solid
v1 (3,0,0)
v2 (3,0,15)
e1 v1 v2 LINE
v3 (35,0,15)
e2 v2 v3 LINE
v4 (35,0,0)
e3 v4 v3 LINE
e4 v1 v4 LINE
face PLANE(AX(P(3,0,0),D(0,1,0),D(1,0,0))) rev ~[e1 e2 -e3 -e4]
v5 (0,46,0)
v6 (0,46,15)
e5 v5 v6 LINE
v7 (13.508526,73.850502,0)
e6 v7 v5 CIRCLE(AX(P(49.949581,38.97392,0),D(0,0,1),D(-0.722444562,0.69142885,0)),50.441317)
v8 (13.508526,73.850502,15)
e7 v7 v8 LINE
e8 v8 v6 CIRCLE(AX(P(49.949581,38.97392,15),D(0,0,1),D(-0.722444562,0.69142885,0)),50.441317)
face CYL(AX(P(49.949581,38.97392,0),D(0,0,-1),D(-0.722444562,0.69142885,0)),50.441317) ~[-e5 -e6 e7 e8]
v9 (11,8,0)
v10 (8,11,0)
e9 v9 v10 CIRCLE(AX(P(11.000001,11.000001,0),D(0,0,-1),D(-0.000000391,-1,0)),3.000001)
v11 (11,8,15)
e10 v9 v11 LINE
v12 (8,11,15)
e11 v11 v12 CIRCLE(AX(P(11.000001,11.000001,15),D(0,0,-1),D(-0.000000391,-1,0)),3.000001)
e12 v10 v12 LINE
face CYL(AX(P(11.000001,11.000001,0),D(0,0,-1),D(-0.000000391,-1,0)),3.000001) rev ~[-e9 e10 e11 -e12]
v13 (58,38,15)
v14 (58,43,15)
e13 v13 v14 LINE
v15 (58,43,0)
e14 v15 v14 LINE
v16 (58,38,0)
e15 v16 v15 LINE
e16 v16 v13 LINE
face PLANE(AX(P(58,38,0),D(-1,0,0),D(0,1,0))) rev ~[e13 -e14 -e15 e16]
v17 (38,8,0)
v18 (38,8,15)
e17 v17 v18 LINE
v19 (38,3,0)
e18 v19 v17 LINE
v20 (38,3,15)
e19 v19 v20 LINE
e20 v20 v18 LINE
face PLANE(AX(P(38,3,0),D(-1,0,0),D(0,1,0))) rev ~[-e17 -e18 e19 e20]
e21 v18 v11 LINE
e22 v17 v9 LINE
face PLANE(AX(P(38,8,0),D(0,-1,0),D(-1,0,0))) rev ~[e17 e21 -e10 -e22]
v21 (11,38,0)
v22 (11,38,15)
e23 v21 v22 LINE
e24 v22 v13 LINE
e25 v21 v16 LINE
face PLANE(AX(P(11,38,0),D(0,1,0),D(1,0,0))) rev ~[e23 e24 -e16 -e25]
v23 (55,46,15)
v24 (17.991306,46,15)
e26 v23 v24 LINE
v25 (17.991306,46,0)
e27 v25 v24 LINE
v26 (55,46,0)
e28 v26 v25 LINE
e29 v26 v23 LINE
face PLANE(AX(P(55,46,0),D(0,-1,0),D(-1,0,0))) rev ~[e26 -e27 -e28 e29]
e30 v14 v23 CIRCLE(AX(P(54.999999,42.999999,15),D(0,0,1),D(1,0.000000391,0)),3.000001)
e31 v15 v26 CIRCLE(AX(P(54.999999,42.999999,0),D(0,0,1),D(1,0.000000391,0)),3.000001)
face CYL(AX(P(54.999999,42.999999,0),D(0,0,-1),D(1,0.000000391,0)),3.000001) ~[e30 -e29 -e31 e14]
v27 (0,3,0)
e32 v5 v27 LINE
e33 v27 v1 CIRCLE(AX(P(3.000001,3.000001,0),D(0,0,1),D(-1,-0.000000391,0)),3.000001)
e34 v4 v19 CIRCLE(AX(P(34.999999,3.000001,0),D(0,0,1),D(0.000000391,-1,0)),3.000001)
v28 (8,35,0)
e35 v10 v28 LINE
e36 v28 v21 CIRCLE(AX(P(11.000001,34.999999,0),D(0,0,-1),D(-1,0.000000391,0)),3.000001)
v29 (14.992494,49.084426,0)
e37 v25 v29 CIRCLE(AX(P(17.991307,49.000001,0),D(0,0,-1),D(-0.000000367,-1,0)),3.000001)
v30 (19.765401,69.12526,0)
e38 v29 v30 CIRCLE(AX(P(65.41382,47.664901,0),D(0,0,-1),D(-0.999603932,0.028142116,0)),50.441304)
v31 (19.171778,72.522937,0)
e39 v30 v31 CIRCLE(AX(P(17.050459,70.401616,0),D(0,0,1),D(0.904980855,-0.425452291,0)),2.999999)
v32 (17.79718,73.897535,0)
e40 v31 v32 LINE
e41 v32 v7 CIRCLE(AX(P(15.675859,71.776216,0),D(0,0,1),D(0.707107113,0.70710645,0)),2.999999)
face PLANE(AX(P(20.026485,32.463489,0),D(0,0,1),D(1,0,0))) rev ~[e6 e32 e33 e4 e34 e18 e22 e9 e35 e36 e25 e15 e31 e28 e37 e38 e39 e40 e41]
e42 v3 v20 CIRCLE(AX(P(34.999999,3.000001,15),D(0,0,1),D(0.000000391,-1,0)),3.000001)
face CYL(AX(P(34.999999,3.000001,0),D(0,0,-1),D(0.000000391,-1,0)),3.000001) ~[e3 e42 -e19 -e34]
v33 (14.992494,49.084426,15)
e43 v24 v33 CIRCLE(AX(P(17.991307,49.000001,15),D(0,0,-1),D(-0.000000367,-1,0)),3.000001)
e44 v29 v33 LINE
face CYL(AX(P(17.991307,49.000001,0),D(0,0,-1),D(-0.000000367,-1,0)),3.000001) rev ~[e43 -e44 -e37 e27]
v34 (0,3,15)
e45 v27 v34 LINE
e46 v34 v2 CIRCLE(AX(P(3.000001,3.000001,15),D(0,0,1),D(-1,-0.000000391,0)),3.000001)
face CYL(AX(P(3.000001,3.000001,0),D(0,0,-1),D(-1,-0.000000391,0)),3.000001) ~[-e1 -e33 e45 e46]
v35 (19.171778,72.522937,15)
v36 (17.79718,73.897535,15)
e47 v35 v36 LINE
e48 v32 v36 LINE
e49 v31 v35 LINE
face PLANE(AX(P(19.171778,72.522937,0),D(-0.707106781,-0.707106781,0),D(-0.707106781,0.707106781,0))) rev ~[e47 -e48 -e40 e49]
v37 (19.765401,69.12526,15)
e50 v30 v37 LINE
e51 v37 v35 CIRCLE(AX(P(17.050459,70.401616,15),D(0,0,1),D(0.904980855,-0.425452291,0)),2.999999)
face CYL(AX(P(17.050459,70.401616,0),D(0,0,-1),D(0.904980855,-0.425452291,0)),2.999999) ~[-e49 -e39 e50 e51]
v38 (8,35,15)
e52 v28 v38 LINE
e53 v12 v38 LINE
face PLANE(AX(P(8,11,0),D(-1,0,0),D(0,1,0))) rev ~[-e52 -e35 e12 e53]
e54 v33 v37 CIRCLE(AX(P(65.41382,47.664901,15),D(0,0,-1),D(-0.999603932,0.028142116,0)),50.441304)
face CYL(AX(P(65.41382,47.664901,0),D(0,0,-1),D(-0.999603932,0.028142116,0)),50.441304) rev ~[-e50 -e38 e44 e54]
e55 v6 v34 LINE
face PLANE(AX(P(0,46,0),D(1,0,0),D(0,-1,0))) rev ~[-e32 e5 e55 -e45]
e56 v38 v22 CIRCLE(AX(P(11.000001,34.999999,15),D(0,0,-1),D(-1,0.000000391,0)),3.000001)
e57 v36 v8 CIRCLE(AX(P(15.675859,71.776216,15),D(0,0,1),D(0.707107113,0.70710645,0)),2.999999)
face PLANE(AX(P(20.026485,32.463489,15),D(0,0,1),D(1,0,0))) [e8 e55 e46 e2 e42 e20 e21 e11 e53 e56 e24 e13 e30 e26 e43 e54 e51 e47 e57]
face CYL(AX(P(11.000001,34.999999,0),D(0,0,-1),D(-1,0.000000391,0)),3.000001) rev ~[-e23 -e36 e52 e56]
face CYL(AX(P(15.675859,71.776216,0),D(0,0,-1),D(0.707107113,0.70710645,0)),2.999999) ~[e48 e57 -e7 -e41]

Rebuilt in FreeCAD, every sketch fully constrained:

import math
import FreeCAD as App
import Part
import Sketcher
from FreeCAD import Vector
Q = App.Units.Quantity

doc = App.newDocument("Part")
body = doc.addObject("PartDesign::Body", "Body")

# Sketch on XY plane
sketch1 = body.newObject("Sketcher::SketchObject", "Sketch")
sketch1.AttachmentSupport = (doc.getObject("XY_Plane"), [""])
sketch1.MapMode = "FlatFace"
sketch1.addGeometry(Part.ArcOfCircle(Part.Circle(Vector(3, 3, 0), Vector(0, 0, 1), 3), math.radians(-180), math.radians(-90)), False)
sketch1.addGeometry(Part.LineSegment(Vector(3, 0, 0), Vector(35, 0, 0)), False)
sketch1.addGeometry(Part.ArcOfCircle(Part.Circle(Vector(35, 3, 0), Vector(0, 0, 1), 3), math.radians(-90), math.radians(0)), False)
sketch1.addGeometry(Part.LineSegment(Vector(38, 3, 0), Vector(38, 8, 0)), False)
sketch1.addGeometry(Part.LineSegment(Vector(38, 8, 0), Vector(11, 8, 0)), False)
sketch1.addGeometry(Part.ArcOfCircle(Part.Circle(Vector(11, 11, 0), Vector(0, 0, 1), 3), math.radians(-180), math.radians(-90)), False)
sketch1.addGeometry(Part.LineSegment(Vector(8, 11, 0), Vector(8, 35, 0)), False)
sketch1.addGeometry(Part.ArcOfCircle(Part.Circle(Vector(11, 35, 0), Vector(0, 0, 1), 3), math.radians(90), math.radians(180)), False)
sketch1.addGeometry(Part.LineSegment(Vector(11, 38, 0), Vector(58, 38, 0)), False)
sketch1.addGeometry(Part.LineSegment(Vector(58, 38, 0), Vector(58, 43, 0)), False)
sketch1.addGeometry(Part.ArcOfCircle(Part.Circle(Vector(55, 43, 0), Vector(0, 0, 1), 3), math.radians(0), math.radians(90)), False)
sketch1.addGeometry(Part.LineSegment(Vector(55, 46, 0), Vector(18, 46, 0)), False)
sketch1.addGeometry(Part.ArcOfCircle(Part.Circle(Vector(18, 49, 0), Vector(0, 0, 1), 3), math.radians(178), math.radians(270)), False)
sketch1.addGeometry(Part.ArcOfCircle(Part.Circle(Vector(65.4, 47.7, 0), Vector(0, 0, 1), 50.4), math.radians(155), math.radians(178)), False)
sketch1.addGeometry(Part.ArcOfCircle(Part.Circle(Vector(17.1, 70.4, 0), Vector(0, 0, 1), 3), math.radians(-25), math.radians(45)), False)
sketch1.addGeometry(Part.LineSegment(Vector(19.2, 72.5, 0), Vector(17.8, 73.9, 0)), False)
sketch1.addGeometry(Part.ArcOfCircle(Part.Circle(Vector(15.7, 71.8, 0), Vector(0, 0, 1), 3), math.radians(45), math.radians(136)), False)
sketch1.addGeometry(Part.ArcOfCircle(Part.Circle(Vector(49.9, 39, 0), Vector(0, 0, 1), 50.4), math.radians(136), math.radians(172)), False)
sketch1.addGeometry(Part.LineSegment(Vector(0, 46, 0), Vector(0, 3, 0)), False)
sketch1.addConstraint(Sketcher.Constraint("Tangent", 0, 2, 1, 1))
sketch1.addConstraint(Sketcher.Constraint("Tangent", 1, 2, 2, 1))
sketch1.addConstraint(Sketcher.Constraint("Tangent", 2, 2, 3, 1))
sketch1.addConstraint(Sketcher.Constraint("Coincident", 3, 2, 4, 1))
sketch1.addConstraint(Sketcher.Constraint("Tangent", 4, 2, 5, 2))
sketch1.addConstraint(Sketcher.Constraint("Tangent", 5, 1, 6, 1))
sketch1.addConstraint(Sketcher.Constraint("Tangent", 6, 2, 7, 2))
sketch1.addConstraint(Sketcher.Constraint("Tangent", 7, 1, 8, 1))
sketch1.addConstraint(Sketcher.Constraint("Coincident", 8, 2, 9, 1))
sketch1.addConstraint(Sketcher.Constraint("Tangent", 9, 2, 10, 1))
sketch1.addConstraint(Sketcher.Constraint("Tangent", 10, 2, 11, 1))
sketch1.addConstraint(Sketcher.Constraint("Tangent", 11, 2, 12, 2))
sketch1.addConstraint(Sketcher.Constraint("Tangent", 12, 1, 13, 2))
sketch1.addConstraint(Sketcher.Constraint("Tangent", 13, 1, 14, 1))
sketch1.addConstraint(Sketcher.Constraint("Tangent", 14, 2, 15, 1))
sketch1.addConstraint(Sketcher.Constraint("Tangent", 15, 2, 16, 1))
sketch1.addConstraint(Sketcher.Constraint("Tangent", 16, 2, 17, 1))
sketch1.addConstraint(Sketcher.Constraint("Coincident", 17, 2, 18, 1))
sketch1.addConstraint(Sketcher.Constraint("Tangent", 18, 2, 0, 1))
sketch1.addConstraint(Sketcher.Constraint("Horizontal", 1))
sketch1.addConstraint(Sketcher.Constraint("Vertical", 3))
sketch1.addConstraint(Sketcher.Constraint("Horizontal", 4))
sketch1.addConstraint(Sketcher.Constraint("Vertical", 6))
sketch1.addConstraint(Sketcher.Constraint("Horizontal", 8))
sketch1.addConstraint(Sketcher.Constraint("Vertical", 9))
sketch1.addConstraint(Sketcher.Constraint("Horizontal", 11))
sketch1.addConstraint(Sketcher.Constraint("Vertical", 18))
sketch1.addConstraint(Sketcher.Constraint("Equal", 0, 2))
sketch1.addConstraint(Sketcher.Constraint("Equal", 2, 5))
sketch1.addConstraint(Sketcher.Constraint("Equal", 5, 7))
sketch1.addConstraint(Sketcher.Constraint("Equal", 7, 10))
sketch1.addConstraint(Sketcher.Constraint("Equal", 10, 12))
sketch1.addConstraint(Sketcher.Constraint("Equal", 14, 16))
sketch1.addConstraint(Sketcher.Constraint("PointOnObject", 0, 2, -1))
sketch1.addConstraint(Sketcher.Constraint("PointOnObject", 17, 2, -2))
sketch1.addConstraint(Sketcher.Constraint("Horizontal", 11, 2, 17, 2))
sketch1.addConstraint(Sketcher.Constraint("Equal", 3, 9))
sketch1.addConstraint(Sketcher.Constraint("Radius", 0, Q("3.000001 mm")))
sketch1.addConstraint(Sketcher.Constraint("Radius", 14, Q("2.999999 mm")))
sketch1.addConstraint(Sketcher.Constraint("DistanceX", 1, 1, 1, 2, Q("32 mm")))
sketch1.addConstraint(Sketcher.Constraint("DistanceX", 4, 2, 4, 1, Q("27 mm")))
sketch1.addConstraint(Sketcher.Constraint("DistanceX", 8, 1, 8, 2, Q("47 mm")))
sketch1.addConstraint(Sketcher.Constraint("DistanceY", 3, 1, 3, 2, Q("5 mm")))
sketch1.addConstraint(Sketcher.Constraint("DistanceY", 6, 1, 6, 2, Q("24 mm")))
sketch1.addConstraint(Sketcher.Constraint("Angle", 15, Q("135 deg")))
sketch1.addConstraint(Sketcher.Constraint("Radius", 13, Q("50.441304 mm")))
sketch1.addConstraint(Sketcher.Constraint("Radius", 17, Q("50.441317 mm")))
sketch1.addConstraint(Sketcher.Constraint("DistanceY", -1, 1, 13, 3, Q("47.664901 mm")))
sketch1.addConstraint(Sketcher.Constraint("DistanceX", -1, 1, 13, 1, Q("19.765401 mm")))
sketch1.addConstraint(Sketcher.Constraint("DistanceY", -1, 1, 16, 2, Q("73.850502 mm")))
sketch1.addConstraint(Sketcher.Constraint("DistanceX", 16, 3, 14, 3, Q("1.3746 mm")))
pad1 = body.newObject("PartDesign::Pad", "Pad")
pad1.Profile = sketch1
pad1.Length = 15

doc.recompute()
